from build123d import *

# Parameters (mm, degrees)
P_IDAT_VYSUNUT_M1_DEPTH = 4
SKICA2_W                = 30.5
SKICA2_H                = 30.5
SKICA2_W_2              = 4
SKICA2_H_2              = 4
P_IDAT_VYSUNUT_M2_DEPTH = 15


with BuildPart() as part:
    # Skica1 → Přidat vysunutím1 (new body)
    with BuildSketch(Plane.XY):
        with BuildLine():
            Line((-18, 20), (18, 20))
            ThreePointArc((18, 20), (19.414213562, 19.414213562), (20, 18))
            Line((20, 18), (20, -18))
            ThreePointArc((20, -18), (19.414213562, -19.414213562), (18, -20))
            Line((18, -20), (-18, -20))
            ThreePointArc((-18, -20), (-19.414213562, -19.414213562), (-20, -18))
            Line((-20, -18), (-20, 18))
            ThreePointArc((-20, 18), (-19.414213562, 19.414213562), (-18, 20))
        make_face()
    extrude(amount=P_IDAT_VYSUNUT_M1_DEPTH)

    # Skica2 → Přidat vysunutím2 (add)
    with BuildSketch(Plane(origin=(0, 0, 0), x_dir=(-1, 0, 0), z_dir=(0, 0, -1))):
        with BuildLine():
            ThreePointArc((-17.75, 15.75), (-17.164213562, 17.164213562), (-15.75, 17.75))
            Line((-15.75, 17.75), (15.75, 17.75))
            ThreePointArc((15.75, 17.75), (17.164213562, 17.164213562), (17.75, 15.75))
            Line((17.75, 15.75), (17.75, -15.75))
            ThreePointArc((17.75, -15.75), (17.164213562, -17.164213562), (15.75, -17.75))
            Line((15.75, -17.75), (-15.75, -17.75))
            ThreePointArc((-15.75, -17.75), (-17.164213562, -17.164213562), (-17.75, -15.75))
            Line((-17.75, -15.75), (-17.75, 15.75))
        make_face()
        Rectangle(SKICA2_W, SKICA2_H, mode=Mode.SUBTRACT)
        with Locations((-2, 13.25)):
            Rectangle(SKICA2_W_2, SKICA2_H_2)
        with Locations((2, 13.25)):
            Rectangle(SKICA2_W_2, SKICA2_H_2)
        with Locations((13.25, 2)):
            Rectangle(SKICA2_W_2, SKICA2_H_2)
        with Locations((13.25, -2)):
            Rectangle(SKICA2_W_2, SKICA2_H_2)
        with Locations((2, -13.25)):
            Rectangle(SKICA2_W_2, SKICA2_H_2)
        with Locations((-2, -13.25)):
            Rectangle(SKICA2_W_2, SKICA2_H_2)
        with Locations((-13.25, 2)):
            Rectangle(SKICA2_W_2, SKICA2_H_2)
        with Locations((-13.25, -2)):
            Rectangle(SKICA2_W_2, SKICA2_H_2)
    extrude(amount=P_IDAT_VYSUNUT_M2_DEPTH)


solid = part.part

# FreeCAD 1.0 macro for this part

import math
import FreeCAD as App
import Part
import Sketcher
from FreeCAD import Vector
Q = App.Units.Quantity


def add_polygon(sketch, points):
    """Adds a closed chain of lines whose ends are joined by coincident constraints."""
    first, n = sketch.GeometryCount, len(points)
    for a, b in zip(points, points[1:] + points[:1]):
        sketch.addGeometry(Part.LineSegment(App.Vector(*a, 0), App.Vector(*b, 0)), False)
    for i in range(n):
        sketch.addConstraint(Sketcher.Constraint("Coincident", first + i, 2, first + (i + 1) % n, 1))

doc = App.newDocument("Part")
params = doc.addObject("Spreadsheet::Sheet", "Params")
for row, (alias, value) in enumerate([
    ("sketch1_radius", "2 mm"),
    ("sketch1_width", "36 mm"),
    ("pad1_length", "4 mm"),
    ("sketch2_radius", "2 mm"),
    ("sketch2_width", "4 mm"),
    ("sketch2_width2", "8 mm"),
    ("sketch2_width3", "31.5 mm"),
    ("sketch2_width4", "11.25 mm"),
    ("pad2_length", "15 mm"),
], start=1):
    params.set(f"A{row}", alias)
    params.set(f"B{row}", "=" + value)
    params.setAlias(f"B{row}", alias)

body = doc.addObject("PartDesign::Body", "Body")

# Sketch on XY plane
sketch1 = body.newObject("Sketcher::SketchObject", "Sketch")
sketch1.AttachmentSupport = (doc.getObject("XY_Plane"), [""])
sketch1.MapMode = "FlatFace"
sketch1.addGeometry([
    Part.LineSegment(Vector(18, 20, 0), Vector(-18, 20, 0)),  # 0
    Part.ArcOfCircle(Part.Circle(Vector(-18, 18, 0), Vector(0, 0, 1), 2), math.radians(90), math.radians(180)),  # 1
    Part.LineSegment(Vector(-20, 18, 0), Vector(-20, -18, 0)),  # 2
    Part.ArcOfCircle(Part.Circle(Vector(-18, -18, 0), Vector(0, 0, 1), 2), math.radians(-180), math.radians(-90)),  # 3
    Part.LineSegment(Vector(-18, -20, 0), Vector(18, -20, 0)),  # 4
    Part.ArcOfCircle(Part.Circle(Vector(18, -18, 0), Vector(0, 0, 1), 2), math.radians(-90), math.radians(0)),  # 5
    Part.LineSegment(Vector(20, -18, 0), Vector(20, 18, 0)),  # 6
    Part.ArcOfCircle(Part.Circle(Vector(18, 18, 0), Vector(0, 0, 1), 2), math.radians(0), math.radians(90)),  # 7
], False)
sketch1.addConstraint([
    Sketcher.Constraint("Tangent", 0, 2, 1, 1),
    Sketcher.Constraint("Tangent", 1, 2, 2, 1),
    Sketcher.Constraint("Tangent", 2, 2, 3, 1),
    Sketcher.Constraint("Tangent", 3, 2, 4, 1),
    Sketcher.Constraint("Tangent", 4, 2, 5, 1),
    Sketcher.Constraint("Tangent", 5, 2, 6, 1),
    Sketcher.Constraint("Tangent", 6, 2, 7, 1),
    Sketcher.Constraint("Tangent", 7, 2, 0, 1),
    Sketcher.Constraint("Horizontal", 0),
    Sketcher.Constraint("Vertical", 2),
    Sketcher.Constraint("Horizontal", 4),
    Sketcher.Constraint("Vertical", 6),
    Sketcher.Constraint("Equal", 1, 3),
    Sketcher.Constraint("Equal", 3, 5),
    Sketcher.Constraint("Equal", 5, 7),
    Sketcher.Constraint("Symmetric", 1, 3, 5, 3, -1, 1),
    Sketcher.Constraint("Equal", 4, 2),
    Sketcher.Constraint("Radius", 1, Q("2 mm")),
    Sketcher.Constraint("DistanceX", 0, 2, 0, 1, Q("36 mm")),
])
sketch1.setExpression("Constraints[17]", "Params.sketch1_radius")
sketch1.setExpression("Constraints[18]", "Params.sketch1_width")
pad1 = body.newObject("PartDesign::Pad", "Pad")
pad1.Profile = sketch1
pad1.setExpression("Length", "Params.pad1_length")

# Sketch on XY plane
sketch2 = body.newObject("Sketcher::SketchObject", "Sketch001")
sketch2.AttachmentSupport = (doc.getObject("XY_Plane"), [""])
sketch2.MapMode = "FlatFace"
sketch2.addGeometry(Part.ArcOfCircle(Part.Circle(Vector(15.75, 15.75, 0), Vector(0, 0, 1), 2), math.radians(0), math.radians(90)), False)  # 0
sketch2.addGeometry(Part.LineSegment(Vector(17.75, 15.75, 0), Vector(17.75, -15.75, 0)), False)  # 1
sketch2.addGeometry(Part.ArcOfCircle(Part.Circle(Vector(15.75, -15.75, 0), Vector(0, 0, 1), 2), math.radians(-90), math.radians(0)), False)  # 2
sketch2.addGeometry(Part.LineSegment(Vector(15.75, -17.75, 0), Vector(-15.75, -17.75, 0)), False)  # 3
sketch2.addGeometry(Part.ArcOfCircle(Part.Circle(Vector(-15.75, -15.75, 0), Vector(0, 0, 1), 2), math.radians(-180), math.radians(-90)), False)  # 4
sketch2.addGeometry(Part.LineSegment(Vector(-17.75, -15.75, 0), Vector(-17.75, 15.75, 0)), False)  # 5
sketch2.addGeometry(Part.ArcOfCircle(Part.Circle(Vector(-15.75, 15.75, 0), Vector(0, 0, 1), 2), math.radians(90), math.radians(180)), False)  # 6
sketch2.addGeometry(Part.LineSegment(Vector(-15.75, 17.75, 0), Vector(15.75, 17.75, 0)), False)  # 7
add_polygon(sketch2, [(15.25, -15.25), (15.25, -4), (11.25, -4), (11.25, 4), (15.25, 4), (15.25, 15.25), (4, 15.25), (4, 11.25), (-4, 11.25), (-4, 15.25), (-15.25, 15.25), (-15.25, 4), (-11.25, 4), (-11.25, -4), (-15.25, -4), (-15.25, -15.25), (-4, -15.25), (-4, -11.25), (4, -11.25), (4, -15.25)])  # lines 8-27
sketch2.addConstraint([
    Sketcher.Constraint("Tangent", 0, 1, 1, 1),
    Sketcher.Constraint("Tangent", 1, 2, 2, 2),
    Sketcher.Constraint("Tangent", 2, 1, 3, 1),
    Sketcher.Constraint("Tangent", 3, 2, 4, 2),
    Sketcher.Constraint("Tangent", 4, 1, 5, 1),
    Sketcher.Constraint("Tangent", 5, 2, 6, 2),
    Sketcher.Constraint("Tangent", 6, 1, 7, 1),
    Sketcher.Constraint("Tangent", 7, 2, 0, 2),
    Sketcher.Constraint("Vertical", 1),
    Sketcher.Constraint("Horizontal", 3),
    Sketcher.Constraint("Vertical", 5),
    Sketcher.Constraint("Horizontal", 7),
    Sketcher.Constraint("Vertical", 8),
    Sketcher.Constraint("Horizontal", 9),
    Sketcher.Constraint("Vertical", 10),
    Sketcher.Constraint("Horizontal", 11),
    Sketcher.Constraint("Vertical", 12),
    Sketcher.Constraint("Horizontal", 13),
    Sketcher.Constraint("Vertical", 14),
    Sketcher.Constraint("Horizontal", 15),
    Sketcher.Constraint("Vertical", 16),
    Sketcher.Constraint("Horizontal", 17),
    Sketcher.Constraint("Vertical", 18),
    Sketcher.Constraint("Horizontal", 19),
    Sketcher.Constraint("Vertical", 20),
    Sketcher.Constraint("Horizontal", 21),
    Sketcher.Constraint("Vertical", 22),
    Sketcher.Constraint("Horizontal", 23),
    Sketcher.Constraint("Vertical", 24),
    Sketcher.Constraint("Horizontal", 25),
    Sketcher.Constraint("Vertical", 26),
    Sketcher.Constraint("Horizontal", 27),
    Sketcher.Constraint("Equal", 0, 2),
    Sketcher.Constraint("Equal", 2, 4),
    Sketcher.Constraint("Equal", 4, 6),
    Sketcher.Constraint("Symmetric", 0, 3, 4, 3, -1, 1),
    Sketcher.Constraint("Symmetric", 8, 2, 18, 2, -1, 1),
    Sketcher.Constraint("Symmetric", 10, 2, 20, 2, -1, 1),
    Sketcher.Constraint("Symmetric", 12, 2, 22, 2, -1, 1),
    Sketcher.Constraint("Symmetric", 14, 2, 24, 2, -1, 1),
    Sketcher.Constraint("Symmetric", 16, 2, 26, 2, -1, 1),
    Sketcher.Constraint("Symmetric", 13, 2, 16, 2, -2),
    Sketcher.Constraint("Symmetric", 11, 2, 18, 2, -2),
    Sketcher.Constraint("Equal", 7, 1),
    Sketcher.Constraint("Equal", 27, 8),
    Sketcher.Constraint("Equal", 25, 10),
    Sketcher.Constraint("Equal", 21, 14),
    Sketcher.Constraint("Radius", 0, Q("2 mm")),
    Sketcher.Constraint("DistanceX", 9, 2, 9, 1, Q("4 mm")),
    Sketcher.Constraint("DistanceX", 15, 2, 15, 1, Q("8 mm")),
    Sketcher.Constraint("DistanceX", 3, 2, 3, 1, Q("31.5 mm")),
    Sketcher.Constraint("DistanceX", 13, 2, 13, 1, Q("11.25 mm")),
])
sketch2.setExpression("Constraints[67]", "Params.sketch2_radius")
sketch2.setExpression("Constraints[68]", "Params.sketch2_width")
sketch2.setExpression("Constraints[69]", "Params.sketch2_width2")
sketch2.setExpression("Constraints[70]", "Params.sketch2_width3")
sketch2.setExpression("Constraints[71]", "Params.sketch2_width4")
pad2 = body.newObject("PartDesign::Pad", "Pad001")
pad2.Profile = sketch2
pad2.setExpression("Length", "Params.pad2_length")
pad2.Reversed = True

doc.recompute()
